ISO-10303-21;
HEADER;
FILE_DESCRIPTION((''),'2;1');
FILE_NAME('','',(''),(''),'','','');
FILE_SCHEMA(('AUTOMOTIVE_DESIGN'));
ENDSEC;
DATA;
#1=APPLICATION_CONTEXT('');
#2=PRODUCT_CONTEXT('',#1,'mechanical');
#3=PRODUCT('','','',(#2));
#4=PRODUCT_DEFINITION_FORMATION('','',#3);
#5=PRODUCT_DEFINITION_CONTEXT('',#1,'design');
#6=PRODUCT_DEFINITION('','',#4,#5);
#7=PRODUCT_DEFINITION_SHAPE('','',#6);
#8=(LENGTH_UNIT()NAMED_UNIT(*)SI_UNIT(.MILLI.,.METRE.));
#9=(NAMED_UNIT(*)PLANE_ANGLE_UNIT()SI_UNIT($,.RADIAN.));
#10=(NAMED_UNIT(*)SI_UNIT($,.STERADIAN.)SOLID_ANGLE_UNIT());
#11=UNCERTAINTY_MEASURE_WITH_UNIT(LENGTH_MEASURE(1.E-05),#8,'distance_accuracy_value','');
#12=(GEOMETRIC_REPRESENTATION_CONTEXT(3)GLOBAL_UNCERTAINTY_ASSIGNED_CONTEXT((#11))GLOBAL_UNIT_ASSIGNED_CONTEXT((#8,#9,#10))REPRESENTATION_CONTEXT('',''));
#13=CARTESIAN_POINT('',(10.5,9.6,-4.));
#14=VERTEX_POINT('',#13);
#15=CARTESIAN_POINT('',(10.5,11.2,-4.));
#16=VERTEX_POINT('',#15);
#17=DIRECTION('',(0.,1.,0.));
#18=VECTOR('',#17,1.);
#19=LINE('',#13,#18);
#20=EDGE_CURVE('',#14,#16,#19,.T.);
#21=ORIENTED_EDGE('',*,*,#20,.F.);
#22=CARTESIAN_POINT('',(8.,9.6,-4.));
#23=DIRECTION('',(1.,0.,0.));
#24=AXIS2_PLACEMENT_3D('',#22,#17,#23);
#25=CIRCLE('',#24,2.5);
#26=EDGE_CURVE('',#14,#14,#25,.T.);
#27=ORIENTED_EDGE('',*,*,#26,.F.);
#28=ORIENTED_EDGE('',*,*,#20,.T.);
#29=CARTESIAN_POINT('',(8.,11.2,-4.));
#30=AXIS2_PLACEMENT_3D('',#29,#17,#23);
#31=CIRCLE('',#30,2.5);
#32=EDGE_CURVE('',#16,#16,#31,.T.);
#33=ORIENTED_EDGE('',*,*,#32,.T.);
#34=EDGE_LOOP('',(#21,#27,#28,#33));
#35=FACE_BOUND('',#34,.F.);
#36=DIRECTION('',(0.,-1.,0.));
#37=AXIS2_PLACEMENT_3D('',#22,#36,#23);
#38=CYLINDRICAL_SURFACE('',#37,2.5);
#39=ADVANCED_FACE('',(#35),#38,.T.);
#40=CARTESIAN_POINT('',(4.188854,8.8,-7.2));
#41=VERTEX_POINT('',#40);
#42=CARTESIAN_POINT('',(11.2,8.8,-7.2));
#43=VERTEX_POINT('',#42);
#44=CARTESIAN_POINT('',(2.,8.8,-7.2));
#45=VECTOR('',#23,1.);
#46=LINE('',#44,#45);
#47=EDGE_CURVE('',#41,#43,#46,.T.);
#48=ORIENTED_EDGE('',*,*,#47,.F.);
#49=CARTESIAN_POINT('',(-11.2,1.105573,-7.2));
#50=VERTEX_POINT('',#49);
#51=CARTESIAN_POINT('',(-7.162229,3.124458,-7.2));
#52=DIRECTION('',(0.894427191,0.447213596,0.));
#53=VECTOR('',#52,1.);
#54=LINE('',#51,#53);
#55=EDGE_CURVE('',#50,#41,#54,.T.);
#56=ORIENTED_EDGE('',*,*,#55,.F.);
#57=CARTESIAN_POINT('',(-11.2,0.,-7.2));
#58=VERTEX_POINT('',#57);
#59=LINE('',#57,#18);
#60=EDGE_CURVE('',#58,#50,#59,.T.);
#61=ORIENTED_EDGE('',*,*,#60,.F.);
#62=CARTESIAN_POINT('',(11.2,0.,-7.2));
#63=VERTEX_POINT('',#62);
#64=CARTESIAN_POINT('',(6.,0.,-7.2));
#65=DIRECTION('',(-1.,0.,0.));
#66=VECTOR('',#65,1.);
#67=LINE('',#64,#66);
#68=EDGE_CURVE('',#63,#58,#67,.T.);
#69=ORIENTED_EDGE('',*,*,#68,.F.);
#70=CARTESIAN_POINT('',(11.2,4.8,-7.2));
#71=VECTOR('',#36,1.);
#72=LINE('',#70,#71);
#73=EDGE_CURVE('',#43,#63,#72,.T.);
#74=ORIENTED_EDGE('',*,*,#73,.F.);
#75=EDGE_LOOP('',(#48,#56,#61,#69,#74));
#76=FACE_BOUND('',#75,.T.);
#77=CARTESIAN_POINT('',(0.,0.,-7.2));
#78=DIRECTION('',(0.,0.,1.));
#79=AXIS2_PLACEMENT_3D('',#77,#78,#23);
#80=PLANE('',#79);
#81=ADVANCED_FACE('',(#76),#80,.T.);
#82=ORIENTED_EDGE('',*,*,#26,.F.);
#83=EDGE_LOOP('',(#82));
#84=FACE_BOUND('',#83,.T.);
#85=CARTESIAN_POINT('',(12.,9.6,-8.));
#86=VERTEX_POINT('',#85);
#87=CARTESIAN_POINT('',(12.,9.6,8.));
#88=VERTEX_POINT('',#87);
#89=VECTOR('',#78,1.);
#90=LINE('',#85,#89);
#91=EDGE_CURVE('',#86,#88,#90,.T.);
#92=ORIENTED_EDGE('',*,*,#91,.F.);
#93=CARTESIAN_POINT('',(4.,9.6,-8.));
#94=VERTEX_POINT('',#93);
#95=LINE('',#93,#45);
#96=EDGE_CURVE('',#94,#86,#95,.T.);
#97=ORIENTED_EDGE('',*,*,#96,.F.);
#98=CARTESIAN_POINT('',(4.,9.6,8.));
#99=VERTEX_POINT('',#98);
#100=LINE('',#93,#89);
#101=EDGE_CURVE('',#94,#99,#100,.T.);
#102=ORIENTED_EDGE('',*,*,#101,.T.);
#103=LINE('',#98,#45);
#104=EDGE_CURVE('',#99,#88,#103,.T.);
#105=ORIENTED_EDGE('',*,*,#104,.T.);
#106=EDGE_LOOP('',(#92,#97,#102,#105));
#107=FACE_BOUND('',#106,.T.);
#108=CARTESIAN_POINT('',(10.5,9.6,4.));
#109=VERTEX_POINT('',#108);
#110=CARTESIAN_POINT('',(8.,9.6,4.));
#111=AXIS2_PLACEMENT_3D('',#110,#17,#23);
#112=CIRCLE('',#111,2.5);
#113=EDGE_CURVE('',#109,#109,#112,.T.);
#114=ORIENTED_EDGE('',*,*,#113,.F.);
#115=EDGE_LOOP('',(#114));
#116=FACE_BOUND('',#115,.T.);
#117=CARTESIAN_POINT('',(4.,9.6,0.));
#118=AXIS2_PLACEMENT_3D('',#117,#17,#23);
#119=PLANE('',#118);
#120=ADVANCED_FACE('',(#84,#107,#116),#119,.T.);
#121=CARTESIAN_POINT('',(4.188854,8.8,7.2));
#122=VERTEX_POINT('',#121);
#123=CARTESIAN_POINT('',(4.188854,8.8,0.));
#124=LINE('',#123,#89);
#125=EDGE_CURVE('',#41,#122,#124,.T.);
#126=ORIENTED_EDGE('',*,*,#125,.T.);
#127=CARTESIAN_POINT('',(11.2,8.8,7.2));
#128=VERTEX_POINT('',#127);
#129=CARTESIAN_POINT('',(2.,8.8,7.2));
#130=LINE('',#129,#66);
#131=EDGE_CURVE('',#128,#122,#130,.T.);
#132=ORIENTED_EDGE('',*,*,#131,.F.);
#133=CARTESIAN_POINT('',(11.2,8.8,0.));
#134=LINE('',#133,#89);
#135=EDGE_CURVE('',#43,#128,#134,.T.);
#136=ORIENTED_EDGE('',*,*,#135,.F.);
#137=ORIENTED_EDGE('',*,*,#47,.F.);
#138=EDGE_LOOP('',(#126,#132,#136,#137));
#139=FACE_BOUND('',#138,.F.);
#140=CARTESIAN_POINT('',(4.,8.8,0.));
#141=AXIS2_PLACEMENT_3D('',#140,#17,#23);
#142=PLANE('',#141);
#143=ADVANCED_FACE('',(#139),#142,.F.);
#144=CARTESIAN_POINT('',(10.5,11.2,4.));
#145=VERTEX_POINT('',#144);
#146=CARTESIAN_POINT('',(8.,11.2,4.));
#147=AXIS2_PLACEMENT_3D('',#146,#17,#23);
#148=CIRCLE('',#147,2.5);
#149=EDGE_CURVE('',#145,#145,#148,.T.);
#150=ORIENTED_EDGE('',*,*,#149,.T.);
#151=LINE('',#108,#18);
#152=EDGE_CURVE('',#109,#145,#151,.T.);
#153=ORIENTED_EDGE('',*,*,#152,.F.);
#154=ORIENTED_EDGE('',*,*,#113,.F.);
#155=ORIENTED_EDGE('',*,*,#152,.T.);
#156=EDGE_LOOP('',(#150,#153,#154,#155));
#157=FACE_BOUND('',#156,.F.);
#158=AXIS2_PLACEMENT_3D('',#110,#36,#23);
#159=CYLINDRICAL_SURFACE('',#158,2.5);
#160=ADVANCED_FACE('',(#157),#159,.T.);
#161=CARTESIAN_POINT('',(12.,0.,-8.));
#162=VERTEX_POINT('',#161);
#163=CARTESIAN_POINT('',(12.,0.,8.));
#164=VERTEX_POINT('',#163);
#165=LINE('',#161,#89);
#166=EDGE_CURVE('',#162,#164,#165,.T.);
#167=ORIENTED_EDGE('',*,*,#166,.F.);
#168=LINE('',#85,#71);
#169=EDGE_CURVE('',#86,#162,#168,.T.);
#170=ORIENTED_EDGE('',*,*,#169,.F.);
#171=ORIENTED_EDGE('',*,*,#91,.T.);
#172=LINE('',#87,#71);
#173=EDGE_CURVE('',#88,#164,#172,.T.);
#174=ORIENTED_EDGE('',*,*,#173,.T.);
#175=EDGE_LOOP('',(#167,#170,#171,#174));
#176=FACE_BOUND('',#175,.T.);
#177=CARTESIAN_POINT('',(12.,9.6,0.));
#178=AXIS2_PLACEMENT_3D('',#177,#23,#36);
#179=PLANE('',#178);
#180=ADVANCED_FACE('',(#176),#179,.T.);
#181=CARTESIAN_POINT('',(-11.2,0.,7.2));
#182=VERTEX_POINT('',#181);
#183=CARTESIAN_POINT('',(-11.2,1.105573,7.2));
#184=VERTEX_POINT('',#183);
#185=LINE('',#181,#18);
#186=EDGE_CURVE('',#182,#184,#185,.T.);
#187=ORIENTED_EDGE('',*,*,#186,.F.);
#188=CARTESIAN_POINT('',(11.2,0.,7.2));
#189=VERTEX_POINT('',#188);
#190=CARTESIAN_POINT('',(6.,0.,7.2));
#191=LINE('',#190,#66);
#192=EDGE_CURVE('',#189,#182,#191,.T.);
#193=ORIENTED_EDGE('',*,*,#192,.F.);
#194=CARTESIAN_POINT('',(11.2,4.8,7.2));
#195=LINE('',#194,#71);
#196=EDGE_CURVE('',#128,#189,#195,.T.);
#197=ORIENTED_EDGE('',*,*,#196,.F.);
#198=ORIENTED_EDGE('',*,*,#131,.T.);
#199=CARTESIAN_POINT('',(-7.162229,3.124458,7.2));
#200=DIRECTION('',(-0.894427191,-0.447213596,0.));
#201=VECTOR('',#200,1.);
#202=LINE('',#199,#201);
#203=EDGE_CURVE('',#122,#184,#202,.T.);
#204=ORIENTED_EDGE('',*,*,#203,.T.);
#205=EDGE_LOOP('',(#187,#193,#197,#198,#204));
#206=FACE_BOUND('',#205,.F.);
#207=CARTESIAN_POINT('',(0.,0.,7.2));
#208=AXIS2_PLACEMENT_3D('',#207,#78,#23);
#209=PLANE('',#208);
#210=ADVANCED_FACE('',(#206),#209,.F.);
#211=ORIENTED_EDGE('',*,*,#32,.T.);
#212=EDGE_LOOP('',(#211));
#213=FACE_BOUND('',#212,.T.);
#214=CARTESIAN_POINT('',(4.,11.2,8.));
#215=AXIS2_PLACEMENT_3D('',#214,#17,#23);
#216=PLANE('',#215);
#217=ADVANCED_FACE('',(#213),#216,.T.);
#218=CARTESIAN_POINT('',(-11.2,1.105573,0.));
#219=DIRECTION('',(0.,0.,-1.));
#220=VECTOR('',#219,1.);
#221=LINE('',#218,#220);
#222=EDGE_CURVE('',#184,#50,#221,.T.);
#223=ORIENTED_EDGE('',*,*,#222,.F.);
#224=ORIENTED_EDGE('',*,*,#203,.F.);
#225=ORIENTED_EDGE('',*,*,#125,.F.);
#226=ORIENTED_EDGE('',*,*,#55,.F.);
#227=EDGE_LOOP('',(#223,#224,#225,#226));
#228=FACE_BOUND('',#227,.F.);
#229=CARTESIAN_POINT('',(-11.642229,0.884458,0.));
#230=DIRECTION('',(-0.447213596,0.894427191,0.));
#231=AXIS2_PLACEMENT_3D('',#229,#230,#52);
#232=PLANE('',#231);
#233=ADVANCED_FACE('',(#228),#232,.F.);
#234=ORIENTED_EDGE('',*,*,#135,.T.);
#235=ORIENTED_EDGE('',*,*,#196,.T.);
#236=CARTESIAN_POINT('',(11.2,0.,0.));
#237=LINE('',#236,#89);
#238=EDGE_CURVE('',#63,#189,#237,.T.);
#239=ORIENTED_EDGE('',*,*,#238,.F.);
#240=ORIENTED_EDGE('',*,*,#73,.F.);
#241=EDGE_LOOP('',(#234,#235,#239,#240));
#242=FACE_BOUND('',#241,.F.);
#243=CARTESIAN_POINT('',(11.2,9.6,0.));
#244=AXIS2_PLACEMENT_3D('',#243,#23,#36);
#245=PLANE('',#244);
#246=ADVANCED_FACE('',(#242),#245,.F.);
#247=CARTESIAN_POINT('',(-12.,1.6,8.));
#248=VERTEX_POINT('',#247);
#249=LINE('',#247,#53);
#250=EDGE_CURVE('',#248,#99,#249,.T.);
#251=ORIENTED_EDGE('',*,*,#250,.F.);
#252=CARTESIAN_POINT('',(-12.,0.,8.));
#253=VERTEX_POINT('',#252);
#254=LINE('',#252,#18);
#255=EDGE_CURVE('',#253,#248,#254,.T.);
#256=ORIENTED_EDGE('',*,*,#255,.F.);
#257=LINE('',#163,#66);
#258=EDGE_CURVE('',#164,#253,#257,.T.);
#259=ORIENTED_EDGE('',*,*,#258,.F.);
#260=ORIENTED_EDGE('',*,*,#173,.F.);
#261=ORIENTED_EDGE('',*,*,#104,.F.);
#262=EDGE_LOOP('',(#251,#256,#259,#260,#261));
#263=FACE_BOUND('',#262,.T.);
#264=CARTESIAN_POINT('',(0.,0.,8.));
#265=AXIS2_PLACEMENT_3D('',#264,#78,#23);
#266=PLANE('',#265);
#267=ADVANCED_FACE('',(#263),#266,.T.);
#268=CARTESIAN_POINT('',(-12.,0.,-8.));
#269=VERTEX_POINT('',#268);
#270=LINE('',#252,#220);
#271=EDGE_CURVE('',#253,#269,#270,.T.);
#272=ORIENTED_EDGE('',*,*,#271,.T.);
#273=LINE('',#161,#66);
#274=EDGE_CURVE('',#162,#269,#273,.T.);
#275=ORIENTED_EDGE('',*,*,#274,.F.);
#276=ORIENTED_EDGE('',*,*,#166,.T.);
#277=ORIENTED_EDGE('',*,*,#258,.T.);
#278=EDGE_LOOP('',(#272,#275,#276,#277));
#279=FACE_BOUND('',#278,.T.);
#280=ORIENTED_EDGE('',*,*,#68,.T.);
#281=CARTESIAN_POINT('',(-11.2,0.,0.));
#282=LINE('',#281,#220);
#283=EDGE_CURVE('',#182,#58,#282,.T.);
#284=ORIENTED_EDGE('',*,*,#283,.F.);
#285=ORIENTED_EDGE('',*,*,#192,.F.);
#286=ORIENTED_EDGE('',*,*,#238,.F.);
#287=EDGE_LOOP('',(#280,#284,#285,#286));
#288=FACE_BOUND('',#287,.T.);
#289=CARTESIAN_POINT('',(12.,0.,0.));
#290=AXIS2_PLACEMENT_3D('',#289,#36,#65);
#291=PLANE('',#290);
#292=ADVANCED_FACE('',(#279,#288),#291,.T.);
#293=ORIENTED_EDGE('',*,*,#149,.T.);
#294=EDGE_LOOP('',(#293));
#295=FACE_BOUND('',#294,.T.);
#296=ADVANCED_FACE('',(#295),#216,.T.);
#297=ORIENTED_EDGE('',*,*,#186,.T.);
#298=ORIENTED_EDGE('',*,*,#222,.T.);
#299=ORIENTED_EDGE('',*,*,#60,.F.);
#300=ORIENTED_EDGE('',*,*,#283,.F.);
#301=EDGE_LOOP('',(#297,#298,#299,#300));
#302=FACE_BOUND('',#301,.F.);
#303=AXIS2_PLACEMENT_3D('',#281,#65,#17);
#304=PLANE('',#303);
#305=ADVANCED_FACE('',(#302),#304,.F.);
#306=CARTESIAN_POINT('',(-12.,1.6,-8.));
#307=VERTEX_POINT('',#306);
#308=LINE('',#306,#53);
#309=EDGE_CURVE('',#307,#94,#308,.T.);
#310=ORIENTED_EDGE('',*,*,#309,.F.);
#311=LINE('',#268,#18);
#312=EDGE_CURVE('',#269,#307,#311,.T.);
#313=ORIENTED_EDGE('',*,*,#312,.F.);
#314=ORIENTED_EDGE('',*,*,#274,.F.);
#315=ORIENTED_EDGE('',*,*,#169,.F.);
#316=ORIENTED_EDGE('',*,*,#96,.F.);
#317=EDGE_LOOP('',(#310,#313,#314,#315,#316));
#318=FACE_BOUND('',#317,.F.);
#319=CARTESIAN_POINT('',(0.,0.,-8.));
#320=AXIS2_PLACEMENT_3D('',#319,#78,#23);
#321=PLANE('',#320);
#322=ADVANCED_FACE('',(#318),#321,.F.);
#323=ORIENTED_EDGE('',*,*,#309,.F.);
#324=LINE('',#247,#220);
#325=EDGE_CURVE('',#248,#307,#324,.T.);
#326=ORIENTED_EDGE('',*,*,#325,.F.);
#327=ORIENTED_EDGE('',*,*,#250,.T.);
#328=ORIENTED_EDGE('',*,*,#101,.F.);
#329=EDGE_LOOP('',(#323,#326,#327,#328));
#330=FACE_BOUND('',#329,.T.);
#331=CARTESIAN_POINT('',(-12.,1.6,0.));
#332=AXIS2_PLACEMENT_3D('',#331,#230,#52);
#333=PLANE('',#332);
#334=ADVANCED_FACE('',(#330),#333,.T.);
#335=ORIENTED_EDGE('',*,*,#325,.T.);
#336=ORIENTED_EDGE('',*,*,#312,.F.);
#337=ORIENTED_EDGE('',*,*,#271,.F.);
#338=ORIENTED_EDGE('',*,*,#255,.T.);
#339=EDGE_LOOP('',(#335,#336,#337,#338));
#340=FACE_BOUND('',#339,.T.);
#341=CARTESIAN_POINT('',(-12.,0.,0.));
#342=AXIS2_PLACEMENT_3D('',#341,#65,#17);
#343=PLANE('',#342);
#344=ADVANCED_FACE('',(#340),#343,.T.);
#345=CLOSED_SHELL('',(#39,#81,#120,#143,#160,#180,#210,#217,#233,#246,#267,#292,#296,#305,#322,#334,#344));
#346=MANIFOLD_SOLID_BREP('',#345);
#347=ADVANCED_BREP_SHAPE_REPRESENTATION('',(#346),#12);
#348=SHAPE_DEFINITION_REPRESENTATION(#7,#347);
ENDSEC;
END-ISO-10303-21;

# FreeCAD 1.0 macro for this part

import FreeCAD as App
import Part
import Sketcher
from FreeCAD import Vector


def faces_at(feature, points):
    """Names of the faces that lie closest to the given points."""
    faces = feature.Shape.Faces
    near = lambda p: min(range(len(faces)), key=lambda i: faces[i].distToShape(Part.Vertex(*p))[0])
    return sorted({f"Face{near(p) + 1}" for p in points})


def add_polygon(sketch, points):
    """Adds a closed chain of lines whose ends are joined by coincident constraints."""
    first, n = sketch.GeometryCount, len(points)
    for a, b in zip(points, points[1:] + points[:1]):
        sketch.addGeometry(Part.LineSegment(App.Vector(*a, 0), App.Vector(*b, 0)), False)
    for i in range(n):
        sketch.addConstraint(Sketcher.Constraint("Coincident", first + i, 2, first + (i + 1) % n, 1))

doc = App.newDocument("Part")
params = doc.addObject("Spreadsheet::Sheet", "Params")
for row, (alias, value) in enumerate([
    ("sketch1_width", "24 mm"),
    ("sketch1_height", "9.6 mm"),
    ("sketch1_height2", "1.6 mm"),
    ("pad1_length", "16 mm"),
    ("thickness_wall", "0.8 mm"),
    ("sketch2_diameter", "5 mm"),
    ("pad2_length", "1.6 mm"),
], start=1):
    params.set(f"A{row}", alias)
    params.set(f"B{row}", "=" + value)
    params.setAlias(f"B{row}", alias)

body = doc.addObject("PartDesign::Body", "Body")

# Sketch on XY plane
sketch1 = doc.addObject("Sketcher::SketchObject", "Sketch")
body.addObject(sketch1)
sketch1.AttachmentSupport = (doc.XY_Plane, [""])
sketch1.MapMode = "FlatFace"
add_polygon(sketch1, [(-12, 0), (12, 0), (12, 9.6), (4, 9.6), (-12, 1.6)])  # lines 0-4
sketch1.addConstraint([
    Sketcher.Constraint("Horizontal", 0),
    Sketcher.Constraint("Vertical", 1),
    Sketcher.Constraint("Horizontal", 2),
    Sketcher.Constraint("Vertical", 4),
    Sketcher.Constraint("Symmetric", 0, 2, 4, 2, -1, 1),
    Sketcher.Constraint("DistanceX", 0, 1, 0, 2, 24.0),
    Sketcher.Constraint("DistanceY", 1, 1, 1, 2, 9.6),
    Sketcher.Constraint("DistanceY", 4, 2, 4, 1, 1.6),
    Sketcher.Constraint("DistanceX", 3, 2, 2, 2, 16.0),
])
sketch1.setExpression("Constraints[10]", "Params.sketch1_width")
sketch1.setExpression("Constraints[11]", "Params.sketch1_height")
sketch1.setExpression("Constraints[12]", "Params.sketch1_height2")
pad1 = doc.addObject("PartDesign::Pad", "Pad")
body.addObject(pad1)
pad1.Profile = sketch1
pad1.setExpression("Length", "Params.pad1_length")
pad1.Midplane = True
doc.recompute()

thickness = doc.addObject("PartDesign::Thickness", "Thickness")
body.addObject(thickness)
thickness.Base = (pad1, faces_at(pad1, [(-4, 0, 2.667)]))
thickness.setExpression("Value", "Params.thickness_wall")
thickness.Reversed = True
thickness.Join = "Intersection"

# Sketch on XZ plane
sketch2 = doc.addObject("Sketcher::SketchObject", "Sketch001")
body.addObject(sketch2)
sketch2.AttachmentSupport = (doc.XZ_Plane, [""])
sketch2.MapMode = "FlatFace"
sketch2.AttachmentOffset = App.Placement(Vector(0, 0, -9.6), App.Rotation())
sketch2.addGeometry([
    Part.Circle(Vector(8, -4, 0), Vector(0, 0, 1), 2.5),
    Part.Circle(Vector(8, 4, 0), Vector(0, 0, 1), 2.5),
], False)
sketch2.addConstraint([
    Sketcher.Constraint("Equal", 0, 1),
    Sketcher.Constraint("Symmetric", 0, 3, 1, 3, -1),
    Sketcher.Constraint("Diameter", 0, 5.0),
    Sketcher.Constraint("DistanceX", -1, 1, 0, 3, 8.0),
    Sketcher.Constraint("DistanceY", 0, 3, -1, 1, 4.0),
])
sketch2.setExpression("Constraints[2]", "Params.sketch2_diameter")
pad2 = doc.addObject("PartDesign::Pad", "Pad001")
body.addObject(pad2)
pad2.Profile = sketch2
pad2.setExpression("Length", "Params.pad2_length")
pad2.Reversed = True

doc.recompute()
